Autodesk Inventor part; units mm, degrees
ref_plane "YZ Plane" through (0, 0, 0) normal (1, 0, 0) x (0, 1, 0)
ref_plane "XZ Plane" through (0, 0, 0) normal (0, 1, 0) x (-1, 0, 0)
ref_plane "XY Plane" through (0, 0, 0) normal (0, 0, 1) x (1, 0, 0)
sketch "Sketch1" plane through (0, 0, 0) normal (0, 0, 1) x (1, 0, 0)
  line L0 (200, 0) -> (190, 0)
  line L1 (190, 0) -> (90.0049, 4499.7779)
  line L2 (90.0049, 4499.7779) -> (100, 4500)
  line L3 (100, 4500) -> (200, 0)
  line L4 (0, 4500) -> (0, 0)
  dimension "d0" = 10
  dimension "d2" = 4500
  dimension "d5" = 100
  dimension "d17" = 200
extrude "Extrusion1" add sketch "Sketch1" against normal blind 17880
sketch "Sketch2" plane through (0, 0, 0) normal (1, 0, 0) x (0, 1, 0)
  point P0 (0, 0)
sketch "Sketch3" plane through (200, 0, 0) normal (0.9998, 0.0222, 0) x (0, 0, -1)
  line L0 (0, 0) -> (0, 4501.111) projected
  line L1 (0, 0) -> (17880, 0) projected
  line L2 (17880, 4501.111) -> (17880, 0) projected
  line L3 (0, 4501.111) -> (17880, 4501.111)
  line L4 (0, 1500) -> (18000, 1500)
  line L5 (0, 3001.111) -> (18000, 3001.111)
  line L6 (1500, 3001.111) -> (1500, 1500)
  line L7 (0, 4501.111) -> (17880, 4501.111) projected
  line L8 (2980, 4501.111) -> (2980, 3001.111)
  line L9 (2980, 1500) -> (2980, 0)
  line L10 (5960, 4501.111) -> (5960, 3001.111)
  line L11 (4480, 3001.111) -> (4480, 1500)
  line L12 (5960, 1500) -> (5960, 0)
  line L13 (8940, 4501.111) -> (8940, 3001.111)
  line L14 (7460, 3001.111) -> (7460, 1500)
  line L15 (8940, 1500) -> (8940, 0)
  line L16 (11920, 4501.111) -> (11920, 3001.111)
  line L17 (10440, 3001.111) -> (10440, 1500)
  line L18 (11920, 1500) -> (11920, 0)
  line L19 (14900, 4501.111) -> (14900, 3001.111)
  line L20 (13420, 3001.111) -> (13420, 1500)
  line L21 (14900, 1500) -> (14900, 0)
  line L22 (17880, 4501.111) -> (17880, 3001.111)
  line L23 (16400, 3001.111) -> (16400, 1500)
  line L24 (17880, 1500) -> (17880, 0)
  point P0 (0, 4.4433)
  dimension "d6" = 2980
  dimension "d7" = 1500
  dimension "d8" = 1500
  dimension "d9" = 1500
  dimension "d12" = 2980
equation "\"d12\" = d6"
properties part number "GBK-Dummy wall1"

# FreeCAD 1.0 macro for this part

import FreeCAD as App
import Part
import Sketcher

V = App.Vector
Q = App.Units.Quantity


def add_polygon(sketch, points):
    """Adds a closed chain of lines whose ends are joined by coincident constraints."""
    first, n = sketch.GeometryCount, len(points)
    for a, b in zip(points, points[1:] + points[:1]):
        sketch.addGeometry(Part.LineSegment(App.Vector(*a, 0), App.Vector(*b, 0)), False)
    for i in range(n):
        sketch.addConstraint(Sketcher.Constraint("Coincident", first + i, 2, first + (i + 1) % n, 1))

doc = App.newDocument("Part")
body = doc.addObject("PartDesign::Body", "Body")

# Sketch on XY plane
sketch1 = doc.addObject("Sketcher::SketchObject", "Sketch")
body.addObject(sketch1)
sketch1.AttachmentSupport = (doc.XY_Plane, [""])
sketch1.MapMode = "FlatFace"
add_polygon(sketch1, [(190, 0), (200, 0), (100, 4500), (90, 4500)])  # lines 0-3
sketch1.addConstraint(Sketcher.Constraint("Horizontal", 0))
sketch1.addConstraint(Sketcher.Constraint("PointOnObject", 0, 2, -1))
sketch1.addConstraint(Sketcher.Constraint("Perpendicular", 1, 2))
sketch1.addConstraint(Sketcher.Constraint("Perpendicular", 2, 3))
sketch1.addConstraint(Sketcher.Constraint("DistanceX", 0, 1, 0, 2, Q("0.3937 in")))
sketch1.addConstraint(Sketcher.Constraint("DistanceX", -1, 1, 1, 2, Q("3.937 in")))
sketch1.addConstraint(Sketcher.Constraint("DistanceX", 1, 2, 0, 2, Q("3.937 in")))
sketch1.addConstraint(Sketcher.Constraint("DistanceY", -1, 1, 1, 2, 4500.0))
pad1 = doc.addObject("PartDesign::Pad", "Pad")
body.addObject(pad1)
pad1.Profile = sketch1
pad1.Length = Q("703.9370079 in")
pad1.Reversed = True

doc.recompute()
